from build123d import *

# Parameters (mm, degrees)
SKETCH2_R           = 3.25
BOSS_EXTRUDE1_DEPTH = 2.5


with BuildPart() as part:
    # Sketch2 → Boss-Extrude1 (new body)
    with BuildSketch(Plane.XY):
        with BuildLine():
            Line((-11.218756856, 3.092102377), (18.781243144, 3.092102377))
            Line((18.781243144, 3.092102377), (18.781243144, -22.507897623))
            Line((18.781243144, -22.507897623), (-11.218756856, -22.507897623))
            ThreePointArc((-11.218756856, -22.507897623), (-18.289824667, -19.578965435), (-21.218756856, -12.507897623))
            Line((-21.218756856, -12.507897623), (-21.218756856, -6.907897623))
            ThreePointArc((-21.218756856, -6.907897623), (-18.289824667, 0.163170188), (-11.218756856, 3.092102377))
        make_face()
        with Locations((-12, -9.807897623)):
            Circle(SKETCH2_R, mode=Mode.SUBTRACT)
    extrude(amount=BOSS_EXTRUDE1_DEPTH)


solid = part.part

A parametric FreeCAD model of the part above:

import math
import FreeCAD as App
import Part
import Sketcher

doc = App.newDocument("Part")
body = doc.addObject("PartDesign::Body", "Body")

sketch1 = doc.addObject("Sketcher::SketchObject", "Sketch")
body.addObject(sketch1)
sketch1.AttachmentSupport = (doc.XY_Plane, [""])
sketch1.MapMode = "FlatFace"
sketch1.addGeometry(Part.LineSegment(App.Vector(18.8, 3.1, 0), App.Vector(-11.2, 3.1, 0)), False)
sketch1.addGeometry(Part.ArcOfCircle(Part.Circle(App.Vector(-11.2, -6.9, 0), App.Vector(0, 0, 1), 10), math.radians(90), math.radians(180)), False)
sketch1.addGeometry(Part.LineSegment(App.Vector(-21.2, -6.9, 0), App.Vector(-21.2, -12.5, 0)), False)
sketch1.addGeometry(Part.ArcOfCircle(Part.Circle(App.Vector(-11.2, -12.5, 0), App.Vector(0, 0, 1), 10), math.radians(-180), math.radians(-90)), False)
sketch1.addGeometry(Part.LineSegment(App.Vector(-11.2, -22.5, 0), App.Vector(18.8, -22.5, 0)), False)
sketch1.addGeometry(Part.LineSegment(App.Vector(18.8, -22.5, 0), App.Vector(18.8, 3.1, 0)), False)
sketch1.addGeometry(Part.Circle(App.Vector(-12, -9.8, 0), App.Vector(0, 0, 1), 3.2), False)
sketch1.addConstraint(Sketcher.Constraint("Tangent", 0, 2, 1, 1))
sketch1.addConstraint(Sketcher.Constraint("Tangent", 1, 2, 2, 1))
sketch1.addConstraint(Sketcher.Constraint("Tangent", 2, 2, 3, 1))
sketch1.addConstraint(Sketcher.Constraint("Tangent", 3, 2, 4, 1))
sketch1.addConstraint(Sketcher.Constraint("Coincident", 4, 2, 5, 1))
sketch1.addConstraint(Sketcher.Constraint("Coincident", 5, 2, 0, 1))
sketch1.addConstraint(Sketcher.Constraint("Horizontal", 0))
sketch1.addConstraint(Sketcher.Constraint("Vertical", 2))
sketch1.addConstraint(Sketcher.Constraint("Horizontal", 4))
sketch1.addConstraint(Sketcher.Constraint("Vertical", 5))
sketch1.addConstraint(Sketcher.Constraint("Equal", 1, 3))
sketch1.addConstraint(Sketcher.Constraint("Radius", 1, 10.0))
sketch1.addConstraint(Sketcher.Constraint("Diameter", 6, 6.5))
sketch1.addConstraint(Sketcher.Constraint("DistanceX", 0, 2, 0, 1, 30.0))
sketch1.addConstraint(Sketcher.Constraint("DistanceY", 2, 2, 2, 1, 5.6))
sketch1.addConstraint(Sketcher.Constraint("DistanceX", 6, 3, -1, 1, 12.0))
sketch1.addConstraint(Sketcher.Constraint("DistanceY", 3, 3, 6, 3, 2.7))
sketch1.addConstraint(Sketcher.Constraint("DistanceX", 1, 3, -1, 1, 11.218757))
sketch1.addConstraint(Sketcher.Constraint("DistanceY", 1, 3, -1, 1, 6.907898))
pad1 = doc.addObject("PartDesign::Pad", "Pad")
body.addObject(pad1)
pad1.Profile = sketch1
pad1.Length = 2.5

doc.recompute()
